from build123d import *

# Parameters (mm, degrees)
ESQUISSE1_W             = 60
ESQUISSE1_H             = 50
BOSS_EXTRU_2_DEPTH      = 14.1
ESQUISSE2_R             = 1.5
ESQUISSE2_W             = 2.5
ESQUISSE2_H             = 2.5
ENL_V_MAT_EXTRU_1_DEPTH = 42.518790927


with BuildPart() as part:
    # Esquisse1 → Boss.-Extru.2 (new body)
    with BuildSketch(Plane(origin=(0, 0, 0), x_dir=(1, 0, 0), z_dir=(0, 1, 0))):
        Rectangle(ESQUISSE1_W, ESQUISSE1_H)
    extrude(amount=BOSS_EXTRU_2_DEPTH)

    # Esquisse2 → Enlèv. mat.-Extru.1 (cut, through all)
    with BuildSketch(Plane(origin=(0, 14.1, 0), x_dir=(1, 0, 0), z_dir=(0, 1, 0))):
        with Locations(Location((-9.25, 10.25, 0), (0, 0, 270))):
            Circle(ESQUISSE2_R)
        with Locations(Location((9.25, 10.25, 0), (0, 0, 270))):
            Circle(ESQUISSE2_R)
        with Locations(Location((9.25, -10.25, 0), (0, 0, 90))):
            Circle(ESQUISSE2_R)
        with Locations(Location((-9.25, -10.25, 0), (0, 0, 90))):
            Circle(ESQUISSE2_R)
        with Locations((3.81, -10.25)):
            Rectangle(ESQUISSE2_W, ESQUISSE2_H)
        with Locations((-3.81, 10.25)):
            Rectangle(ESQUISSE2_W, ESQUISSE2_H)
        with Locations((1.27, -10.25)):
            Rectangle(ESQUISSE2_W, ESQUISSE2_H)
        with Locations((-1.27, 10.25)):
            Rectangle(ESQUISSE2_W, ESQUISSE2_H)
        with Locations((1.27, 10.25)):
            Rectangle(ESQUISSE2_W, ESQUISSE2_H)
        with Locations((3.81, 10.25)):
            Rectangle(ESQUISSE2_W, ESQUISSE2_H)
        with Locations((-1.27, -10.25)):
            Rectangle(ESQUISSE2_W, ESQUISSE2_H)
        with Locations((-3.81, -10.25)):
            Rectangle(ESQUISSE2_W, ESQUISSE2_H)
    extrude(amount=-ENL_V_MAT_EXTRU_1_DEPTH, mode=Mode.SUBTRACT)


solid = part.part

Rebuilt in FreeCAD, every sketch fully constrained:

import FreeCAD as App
import Part
import Sketcher

V = App.Vector


def add_polygon(sketch, points):
    """Adds a closed chain of lines whose ends are joined by coincident constraints."""
    first, n = sketch.GeometryCount, len(points)
    for a, b in zip(points, points[1:] + points[:1]):
        sketch.addGeometry(Part.LineSegment(App.Vector(*a, 0), App.Vector(*b, 0)), False)
    for i in range(n):
        sketch.addConstraint(Sketcher.Constraint("Coincident", first + i, 2, first + (i + 1) % n, 1))

doc = App.newDocument("Part")
params = doc.addObject("Spreadsheet::Sheet", "Params")
for row, (alias, value) in enumerate([
    ("sketch1_width", "60 mm"),
    ("sketch1_height", "50 mm"),
    ("pad1_length", "14.1 mm"),
    ("sketch2_diameter", "3 mm"),
    ("sketch2_width", "2.5 mm"),
], start=1):
    params.set(f"A{row}", alias)
    params.set(f"B{row}", "=" + value)
    params.setAlias(f"B{row}", alias)

body = doc.addObject("PartDesign::Body", "Body")

sketch1 = body.newObject("Sketcher::SketchObject", "Sketch")
sketch1.AttachmentSupport = (doc.getObject("XZ_Plane"), [""])
sketch1.MapMode = "FlatFace"
add_polygon(sketch1, [(-30, -25), (-30, 25), (30, 25), (30, -25)])
sketch1.addConstraint(Sketcher.Constraint("Vertical", 0))
sketch1.addConstraint(Sketcher.Constraint("Horizontal", 1))
sketch1.addConstraint(Sketcher.Constraint("Vertical", 2))
sketch1.addConstraint(Sketcher.Constraint("Horizontal", 3))
sketch1.addConstraint(Sketcher.Constraint("Symmetric", 0, 2, 2, 2, -1, 1))
sketch1.addConstraint(Sketcher.Constraint("DistanceX", 1, 1, 1, 2, 60.0))
sketch1.addConstraint(Sketcher.Constraint("DistanceY", 0, 1, 0, 2, 50.0))
sketch1.setExpression("Constraints[9]", "Params.sketch1_width")
sketch1.setExpression("Constraints[10]", "Params.sketch1_height")
pad1 = body.newObject("PartDesign::Pad", "Pad")
pad1.Profile = sketch1
pad1.setExpression("Length", "Params.pad1_length")
pad1.Reversed = True

sketch2 = body.newObject("Sketcher::SketchObject", "Sketch001")
sketch2.AttachmentSupport = (doc.getObject("XZ_Plane"), [""])
sketch2.MapMode = "FlatFace"
sketch2.AttachmentOffset = App.Placement(V(0, 0, -14.1), App.Rotation())
sketch2.addGeometry(Part.Circle(V(-9.25, -10.25, 0), V(0, 0, 1), 1.5), False)
sketch2.addGeometry(Part.Circle(V(9.25, -10.25, 0), V(0, 0, 1), 1.5), False)
sketch2.addGeometry(Part.Circle(V(9.25, 10.25, 0), V(0, 0, 1), 1.5), False)
sketch2.addGeometry(Part.Circle(V(-9.25, 10.25, 0), V(0, 0, 1), 1.5), False)
add_polygon(sketch2, [(2.56, 9), (2.56, 11.5), (5.06, 11.5), (5.06, 9)])
add_polygon(sketch2, [(-5.06, -11.5), (-5.06, -9), (-2.56, -9), (-2.56, -11.5)])
add_polygon(sketch2, [(0.02, 9), (0.02, 11.5), (2.52, 11.5), (2.52, 9)])
add_polygon(sketch2, [(-2.52, -11.5), (-2.52, -9), (-0.02, -9), (-0.02, -11.5)])
add_polygon(sketch2, [(0.02, -11.5), (0.02, -9), (2.52, -9), (2.52, -11.5)])
add_polygon(sketch2, [(2.56, -11.5), (2.56, -9), (5.06, -9), (5.06, -11.5)])
add_polygon(sketch2, [(-2.52, 9), (-2.52, 11.5), (-0.02, 11.5), (-0.02, 9)])
add_polygon(sketch2, [(-5.06, 9), (-5.06, 11.5), (-2.56, 11.5), (-2.56, 9)])
sketch2.addConstraint(Sketcher.Constraint("Vertical", 4))
sketch2.addConstraint(Sketcher.Constraint("Horizontal", 5))
sketch2.addConstraint(Sketcher.Constraint("Vertical", 6))
sketch2.addConstraint(Sketcher.Constraint("Horizontal", 7))
sketch2.addConstraint(Sketcher.Constraint("Vertical", 8))
sketch2.addConstraint(Sketcher.Constraint("Horizontal", 9))
sketch2.addConstraint(Sketcher.Constraint("Vertical", 10))
sketch2.addConstraint(Sketcher.Constraint("Horizontal", 11))
sketch2.addConstraint(Sketcher.Constraint("Vertical", 12))
sketch2.addConstraint(Sketcher.Constraint("Horizontal", 13))
sketch2.addConstraint(Sketcher.Constraint("Vertical", 14))
sketch2.addConstraint(Sketcher.Constraint("Horizontal", 15))
sketch2.addConstraint(Sketcher.Constraint("Vertical", 16))
sketch2.addConstraint(Sketcher.Constraint("Horizontal", 17))
sketch2.addConstraint(Sketcher.Constraint("Vertical", 18))
sketch2.addConstraint(Sketcher.Constraint("Horizontal", 19))
sketch2.addConstraint(Sketcher.Constraint("Vertical", 20))
sketch2.addConstraint(Sketcher.Constraint("Horizontal", 21))
sketch2.addConstraint(Sketcher.Constraint("Vertical", 22))
sketch2.addConstraint(Sketcher.Constraint("Horizontal", 23))
sketch2.addConstraint(Sketcher.Constraint("Vertical", 24))
sketch2.addConstraint(Sketcher.Constraint("Horizontal", 25))
sketch2.addConstraint(Sketcher.Constraint("Vertical", 26))
sketch2.addConstraint(Sketcher.Constraint("Horizontal", 27))
sketch2.addConstraint(Sketcher.Constraint("Vertical", 28))
sketch2.addConstraint(Sketcher.Constraint("Horizontal", 29))
sketch2.addConstraint(Sketcher.Constraint("Vertical", 30))
sketch2.addConstraint(Sketcher.Constraint("Horizontal", 31))
sketch2.addConstraint(Sketcher.Constraint("Vertical", 32))
sketch2.addConstraint(Sketcher.Constraint("Horizontal", 33))
sketch2.addConstraint(Sketcher.Constraint("Vertical", 34))
sketch2.addConstraint(Sketcher.Constraint("Horizontal", 35))
sketch2.addConstraint(Sketcher.Constraint("Equal", 0, 1))
sketch2.addConstraint(Sketcher.Constraint("Equal", 1, 2))
sketch2.addConstraint(Sketcher.Constraint("Equal", 2, 3))
sketch2.addConstraint(Sketcher.Constraint("Symmetric", 0, 3, 2, 3, -1, 1))
sketch2.addConstraint(Sketcher.Constraint("Symmetric", 1, 3, 3, 3, -1, 1))
sketch2.addConstraint(Sketcher.Constraint("Symmetric", 6, 2, 8, 2, -1, 1))
sketch2.addConstraint(Sketcher.Constraint("Symmetric", 4, 2, 10, 2, -1, 1))
sketch2.addConstraint(Sketcher.Constraint("Symmetric", 14, 2, 16, 2, -1, 1))
sketch2.addConstraint(Sketcher.Constraint("Symmetric", 12, 2, 18, 2, -1, 1))
sketch2.addConstraint(Sketcher.Constraint("Symmetric", 22, 2, 28, 2, -1, 1))
sketch2.addConstraint(Sketcher.Constraint("Symmetric", 20, 2, 30, 2, -1, 1))
sketch2.addConstraint(Sketcher.Constraint("Symmetric", 26, 2, 32, 2, -1, 1))
sketch2.addConstraint(Sketcher.Constraint("Symmetric", 24, 2, 34, 2, -1, 1))
sketch2.addConstraint(Sketcher.Constraint("Symmetric", 0, 3, 1, 3, -2))
sketch2.addConstraint(Sketcher.Constraint("Symmetric", 17, 2, 20, 2, -2))
sketch2.addConstraint(Sketcher.Constraint("Symmetric", 19, 2, 22, 2, -2))
sketch2.addConstraint(Sketcher.Constraint("Symmetric", 9, 2, 24, 2, -2))
sketch2.addConstraint(Sketcher.Constraint("Symmetric", 11, 2, 26, 2, -2))
sketch2.addConstraint(Sketcher.Constraint("Horizontal", 5, 2, 12, 2))
sketch2.addConstraint(Sketcher.Constraint("Horizontal", 7, 2, 14, 2))
sketch2.addConstraint(Sketcher.Constraint("Equal", 11, 13))
sketch2.addConstraint(Sketcher.Constraint("Equal", 35, 4))
sketch2.addConstraint(Sketcher.Constraint("Diameter", 0, 3.0))
sketch2.addConstraint(Sketcher.Constraint("DistanceX", 5, 1, 5, 2, 2.5))
sketch2.addConstraint(Sketcher.Constraint("DistanceY", -1, 1, 6, 2, 9.0))
sketch2.addConstraint(Sketcher.Constraint("DistanceX", 0, 3, 1, 3, 18.5))
sketch2.addConstraint(Sketcher.Constraint("DistanceY", 1, 3, 2, 3, 20.5))
sketch2.addConstraint(Sketcher.Constraint("DistanceX", -1, 1, 4, 2, 2.56))
sketch2.addConstraint(Sketcher.Constraint("DistanceX", -1, 1, 12, 2, 0.02))
sketch2.setExpression("Constraints[86]", "Params.sketch2_diameter")
sketch2.setExpression("Constraints[87]", "Params.sketch2_width")
pocket1 = body.newObject("PartDesign::Pocket", "Pocket")
pocket1.Profile = sketch2
pocket1.Type = "ThroughAll"
pocket1.Reversed = True

doc.recompute()
